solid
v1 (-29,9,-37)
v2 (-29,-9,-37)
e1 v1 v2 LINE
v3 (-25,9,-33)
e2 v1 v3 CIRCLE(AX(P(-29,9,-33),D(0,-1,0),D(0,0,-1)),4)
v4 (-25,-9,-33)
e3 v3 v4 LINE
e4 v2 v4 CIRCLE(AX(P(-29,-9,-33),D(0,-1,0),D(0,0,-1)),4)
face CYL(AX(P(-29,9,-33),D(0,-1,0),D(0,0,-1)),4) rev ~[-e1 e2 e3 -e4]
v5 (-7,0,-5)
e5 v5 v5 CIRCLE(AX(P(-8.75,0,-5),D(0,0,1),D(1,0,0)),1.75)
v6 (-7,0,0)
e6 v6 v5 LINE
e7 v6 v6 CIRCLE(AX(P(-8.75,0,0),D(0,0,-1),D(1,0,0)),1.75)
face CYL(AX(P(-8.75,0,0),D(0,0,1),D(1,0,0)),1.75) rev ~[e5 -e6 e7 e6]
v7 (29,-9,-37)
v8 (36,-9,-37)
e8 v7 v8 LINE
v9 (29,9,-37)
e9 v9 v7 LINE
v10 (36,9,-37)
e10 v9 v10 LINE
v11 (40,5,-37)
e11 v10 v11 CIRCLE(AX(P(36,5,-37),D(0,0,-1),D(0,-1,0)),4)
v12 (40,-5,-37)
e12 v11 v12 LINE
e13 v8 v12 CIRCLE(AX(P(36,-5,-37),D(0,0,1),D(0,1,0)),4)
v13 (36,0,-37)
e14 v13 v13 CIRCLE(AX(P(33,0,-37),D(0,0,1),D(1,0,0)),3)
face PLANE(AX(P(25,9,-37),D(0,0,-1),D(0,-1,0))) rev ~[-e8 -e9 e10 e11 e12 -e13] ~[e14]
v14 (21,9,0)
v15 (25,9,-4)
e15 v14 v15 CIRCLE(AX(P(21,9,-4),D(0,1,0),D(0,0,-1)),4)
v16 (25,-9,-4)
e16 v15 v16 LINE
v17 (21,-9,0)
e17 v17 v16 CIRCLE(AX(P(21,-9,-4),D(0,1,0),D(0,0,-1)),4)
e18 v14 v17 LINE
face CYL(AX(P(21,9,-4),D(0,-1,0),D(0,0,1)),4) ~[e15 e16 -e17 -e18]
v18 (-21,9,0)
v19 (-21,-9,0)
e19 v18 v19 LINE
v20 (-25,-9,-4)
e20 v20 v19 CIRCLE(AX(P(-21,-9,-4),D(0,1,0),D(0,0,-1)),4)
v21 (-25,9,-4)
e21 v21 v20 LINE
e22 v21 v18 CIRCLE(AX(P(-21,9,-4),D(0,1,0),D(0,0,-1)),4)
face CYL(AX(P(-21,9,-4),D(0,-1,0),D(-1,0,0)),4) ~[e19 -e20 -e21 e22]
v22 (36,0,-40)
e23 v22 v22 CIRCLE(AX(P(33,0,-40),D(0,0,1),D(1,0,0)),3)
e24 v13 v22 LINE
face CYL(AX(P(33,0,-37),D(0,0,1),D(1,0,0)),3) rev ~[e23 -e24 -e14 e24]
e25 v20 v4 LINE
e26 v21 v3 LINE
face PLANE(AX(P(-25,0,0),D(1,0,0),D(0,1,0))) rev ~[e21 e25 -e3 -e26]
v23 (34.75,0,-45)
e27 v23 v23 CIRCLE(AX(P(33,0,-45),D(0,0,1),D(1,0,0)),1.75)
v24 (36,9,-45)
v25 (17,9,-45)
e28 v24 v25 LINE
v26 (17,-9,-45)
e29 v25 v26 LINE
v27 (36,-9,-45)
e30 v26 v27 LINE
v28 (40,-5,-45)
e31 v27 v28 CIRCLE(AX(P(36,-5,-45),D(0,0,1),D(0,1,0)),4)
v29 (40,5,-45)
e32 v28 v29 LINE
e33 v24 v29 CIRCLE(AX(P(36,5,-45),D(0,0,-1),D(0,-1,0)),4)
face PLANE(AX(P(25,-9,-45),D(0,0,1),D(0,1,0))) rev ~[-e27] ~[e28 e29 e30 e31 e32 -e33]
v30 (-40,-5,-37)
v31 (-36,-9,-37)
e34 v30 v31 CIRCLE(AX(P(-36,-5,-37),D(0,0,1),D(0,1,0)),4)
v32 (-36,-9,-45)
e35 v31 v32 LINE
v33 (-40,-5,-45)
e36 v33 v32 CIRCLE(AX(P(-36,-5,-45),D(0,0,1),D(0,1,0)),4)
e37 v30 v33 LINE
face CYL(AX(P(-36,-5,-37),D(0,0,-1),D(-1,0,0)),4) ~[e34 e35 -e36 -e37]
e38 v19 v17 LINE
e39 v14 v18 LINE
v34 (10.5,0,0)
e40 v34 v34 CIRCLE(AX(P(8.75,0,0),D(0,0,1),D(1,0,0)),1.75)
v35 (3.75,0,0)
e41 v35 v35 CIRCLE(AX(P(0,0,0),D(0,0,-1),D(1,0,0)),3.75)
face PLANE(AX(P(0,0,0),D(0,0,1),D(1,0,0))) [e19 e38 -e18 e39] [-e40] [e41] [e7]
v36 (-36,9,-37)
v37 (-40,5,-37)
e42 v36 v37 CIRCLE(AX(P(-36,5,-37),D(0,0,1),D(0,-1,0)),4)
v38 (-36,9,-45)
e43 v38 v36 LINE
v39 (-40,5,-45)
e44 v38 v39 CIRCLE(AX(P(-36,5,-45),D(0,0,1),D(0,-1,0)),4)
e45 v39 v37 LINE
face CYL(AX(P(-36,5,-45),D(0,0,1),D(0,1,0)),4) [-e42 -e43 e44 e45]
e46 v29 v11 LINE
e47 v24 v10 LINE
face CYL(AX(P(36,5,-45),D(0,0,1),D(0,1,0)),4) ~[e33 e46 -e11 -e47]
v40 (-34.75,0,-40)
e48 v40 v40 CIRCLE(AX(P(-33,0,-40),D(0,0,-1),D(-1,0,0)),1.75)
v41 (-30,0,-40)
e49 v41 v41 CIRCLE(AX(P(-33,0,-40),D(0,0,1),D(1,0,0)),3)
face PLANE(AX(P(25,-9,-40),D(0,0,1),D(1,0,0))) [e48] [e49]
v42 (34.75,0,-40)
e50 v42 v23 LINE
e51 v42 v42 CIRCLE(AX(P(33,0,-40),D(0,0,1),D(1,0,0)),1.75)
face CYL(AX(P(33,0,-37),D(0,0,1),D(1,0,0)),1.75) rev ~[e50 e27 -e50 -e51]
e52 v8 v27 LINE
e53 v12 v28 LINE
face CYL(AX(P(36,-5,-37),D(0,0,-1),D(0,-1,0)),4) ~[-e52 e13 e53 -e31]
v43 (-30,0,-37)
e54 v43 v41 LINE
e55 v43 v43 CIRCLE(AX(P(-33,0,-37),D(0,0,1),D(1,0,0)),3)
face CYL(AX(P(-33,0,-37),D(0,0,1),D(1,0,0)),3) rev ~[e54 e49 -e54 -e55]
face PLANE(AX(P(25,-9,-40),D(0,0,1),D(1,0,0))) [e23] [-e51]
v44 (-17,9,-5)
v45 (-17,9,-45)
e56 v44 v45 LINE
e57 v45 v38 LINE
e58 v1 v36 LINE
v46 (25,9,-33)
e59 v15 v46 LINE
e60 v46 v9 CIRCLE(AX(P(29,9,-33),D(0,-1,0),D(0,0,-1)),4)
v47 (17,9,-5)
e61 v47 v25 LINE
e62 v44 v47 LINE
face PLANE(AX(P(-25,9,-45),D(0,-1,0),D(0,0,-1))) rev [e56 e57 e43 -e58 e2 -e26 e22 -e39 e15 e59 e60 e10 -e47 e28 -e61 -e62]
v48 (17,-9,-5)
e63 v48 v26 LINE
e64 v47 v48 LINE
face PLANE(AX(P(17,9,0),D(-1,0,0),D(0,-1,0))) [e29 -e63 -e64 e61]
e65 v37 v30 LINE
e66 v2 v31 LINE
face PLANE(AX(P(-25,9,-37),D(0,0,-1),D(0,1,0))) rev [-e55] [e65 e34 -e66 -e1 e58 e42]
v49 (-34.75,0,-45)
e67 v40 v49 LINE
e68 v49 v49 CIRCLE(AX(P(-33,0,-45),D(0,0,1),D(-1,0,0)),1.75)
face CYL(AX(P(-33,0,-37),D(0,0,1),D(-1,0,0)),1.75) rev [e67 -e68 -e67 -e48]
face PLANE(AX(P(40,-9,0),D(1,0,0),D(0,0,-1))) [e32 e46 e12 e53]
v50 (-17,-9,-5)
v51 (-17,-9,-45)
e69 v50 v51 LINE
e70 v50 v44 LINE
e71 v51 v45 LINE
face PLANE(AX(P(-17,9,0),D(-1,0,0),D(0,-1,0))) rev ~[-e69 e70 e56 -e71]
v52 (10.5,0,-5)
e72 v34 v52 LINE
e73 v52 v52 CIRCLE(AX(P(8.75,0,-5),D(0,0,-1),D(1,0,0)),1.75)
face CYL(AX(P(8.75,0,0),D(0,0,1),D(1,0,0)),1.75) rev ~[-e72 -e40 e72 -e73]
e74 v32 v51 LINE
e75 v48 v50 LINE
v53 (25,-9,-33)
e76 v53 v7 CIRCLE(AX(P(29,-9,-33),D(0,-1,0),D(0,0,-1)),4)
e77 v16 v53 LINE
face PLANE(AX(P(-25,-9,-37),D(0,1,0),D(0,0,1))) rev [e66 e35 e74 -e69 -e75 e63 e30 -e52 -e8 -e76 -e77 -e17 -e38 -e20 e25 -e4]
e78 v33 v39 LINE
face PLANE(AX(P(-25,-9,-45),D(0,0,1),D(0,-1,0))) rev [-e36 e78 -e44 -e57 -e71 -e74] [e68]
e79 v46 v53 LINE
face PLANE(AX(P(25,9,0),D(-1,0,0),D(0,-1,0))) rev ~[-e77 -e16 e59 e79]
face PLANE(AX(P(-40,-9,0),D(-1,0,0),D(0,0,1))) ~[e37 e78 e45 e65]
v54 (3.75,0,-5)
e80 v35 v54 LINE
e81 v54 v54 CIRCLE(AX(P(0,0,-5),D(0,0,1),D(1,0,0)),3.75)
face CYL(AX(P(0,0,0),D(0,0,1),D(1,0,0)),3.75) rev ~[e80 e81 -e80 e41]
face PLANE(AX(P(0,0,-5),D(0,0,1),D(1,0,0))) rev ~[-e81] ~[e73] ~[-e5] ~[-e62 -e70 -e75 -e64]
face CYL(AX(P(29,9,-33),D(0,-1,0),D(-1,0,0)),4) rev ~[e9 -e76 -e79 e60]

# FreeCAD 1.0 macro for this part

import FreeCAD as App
import Part
import Sketcher

V = App.Vector


def edges_at(feature, points):
    """Names of the edges that pass closest to the given points."""
    edges = feature.Shape.Edges
    near = lambda p: min(range(len(edges)), key=lambda i: edges[i].distToShape(Part.Vertex(*p))[0])
    return sorted({f"Edge{near(p) + 1}" for p in points})

doc = App.newDocument("Part")
body = doc.addObject("PartDesign::Body", "Body")

sketch1 = doc.addObject("Sketcher::SketchObject", "Sketch")
body.addObject(sketch1)
sketch1.AttachmentSupport = (doc.XY_Plane, [""])
sketch1.MapMode = "FlatFace"
sketch1.addGeometry([
    Part.LineSegment(V(17, -9, 0), V(17, 9, 0)),
    Part.LineSegment(V(17, 9, 0), V(-17, 9, 0)),
    Part.LineSegment(V(-17, 9, 0), V(-17, -9, 0)),
    Part.LineSegment(V(-17, -9, 0), V(17, -9, 0)),
    Part.Circle(V(8.75, 0, 0), V(0, 0, 1), 1.75),
    Part.Circle(V(0, 0, 0), V(0, 0, 1), 3.75),
    Part.Circle(V(-8.75, 0, 0), V(0, 0, 1), 1.75),
], False)
sketch1.addConstraint([
    Sketcher.Constraint("Coincident", 0, 2, 1, 1),
    Sketcher.Constraint("Coincident", 1, 2, 2, 1),
    Sketcher.Constraint("Coincident", 2, 2, 3, 1),
    Sketcher.Constraint("Coincident", 3, 2, 0, 1),
    Sketcher.Constraint("Vertical", 0),
    Sketcher.Constraint("Horizontal", 1),
    Sketcher.Constraint("Vertical", 2),
    Sketcher.Constraint("Horizontal", 3),
    Sketcher.Constraint("Coincident", 5, 3, -1, 1),
    Sketcher.Constraint("Equal", 4, 6),
    Sketcher.Constraint("Symmetric", 4, 3, 6, 3, -1, 1),
    Sketcher.Constraint("Symmetric", 0, 2, 2, 2, -1, 1),
    Sketcher.Constraint("PointOnObject", 4, 3, -1),
    Sketcher.Constraint("Diameter", 4, 3.5),
    Sketcher.Constraint("Diameter", 5, 7.5),
    Sketcher.Constraint("DistanceY", 0, 1, 0, 2, 18.0),
    Sketcher.Constraint("DistanceX", 1, 2, 1, 1, 34.0),
    Sketcher.Constraint("DistanceX", -1, 1, 4, 3, 8.75),
])
pad1 = doc.addObject("PartDesign::Pad", "Pad")
body.addObject(pad1)
pad1.Profile = sketch1
pad1.Length = 5
pad1.Reversed = True

sketch2 = doc.addObject("Sketcher::SketchObject", "Sketch001")
body.addObject(sketch2)
sketch2.AttachmentSupport = (doc.XY_Plane, [""])
sketch2.MapMode = "FlatFace"
sketch2.addGeometry([
    Part.LineSegment(V(-17, 9, 0), V(-25, 9, 0)),
    Part.LineSegment(V(-25, 9, 0), V(-25, -9, 0)),
    Part.LineSegment(V(-25, -9, 0), V(-17, -9, 0)),
    Part.LineSegment(V(-17, -9, 0), V(-17, 9, 0)),
    Part.LineSegment(V(25, 9, 0), V(17, 9, 0)),
    Part.LineSegment(V(17, 9, 0), V(17, -9, 0)),
    Part.LineSegment(V(17, -9, 0), V(25, -9, 0)),
    Part.LineSegment(V(25, -9, 0), V(25, 9, 0)),
], False)
sketch2.addConstraint([
    Sketcher.Constraint("Coincident", 0, 2, 1, 1),
    Sketcher.Constraint("Coincident", 1, 2, 2, 1),
    Sketcher.Constraint("Coincident", 2, 2, 3, 1),
    Sketcher.Constraint("Coincident", 3, 2, 0, 1),
    Sketcher.Constraint("Coincident", 4, 2, 5, 1),
    Sketcher.Constraint("Coincident", 5, 2, 6, 1),
    Sketcher.Constraint("Coincident", 6, 2, 7, 1),
    Sketcher.Constraint("Coincident", 7, 2, 4, 1),
    Sketcher.Constraint("Horizontal", 0),
    Sketcher.Constraint("Vertical", 1),
    Sketcher.Constraint("Horizontal", 2),
    Sketcher.Constraint("Vertical", 3),
    Sketcher.Constraint("Horizontal", 4),
    Sketcher.Constraint("Vertical", 5),
    Sketcher.Constraint("Horizontal", 6),
    Sketcher.Constraint("Vertical", 7),
    Sketcher.Constraint("Symmetric", 2, 2, 4, 2, -1, 1),
    Sketcher.Constraint("Symmetric", 0, 2, 6, 2, -1, 1),
    Sketcher.Constraint("Horizontal", 3, 2, 4, 2),
    Sketcher.Constraint("DistanceX", 0, 2, 0, 1, 8.0),
    Sketcher.Constraint("DistanceY", 1, 2, 1, 1, 18.0),
    Sketcher.Constraint("DistanceX", 1, 2, 6, 2, 50.0),
])
pad2 = doc.addObject("PartDesign::Pad", "Pad001")
body.addObject(pad2)
pad2.Profile = sketch2
pad2.Length = 45
pad2.Reversed = True

sketch3 = doc.addObject("Sketcher::SketchObject", "Sketch002")
body.addObject(sketch3)
sketch3.AttachmentSupport = (doc.YZ_Plane, [""])
sketch3.MapMode = "FlatFace"
sketch3.AttachmentOffset = App.Placement(V(0, 0, 25), App.Rotation())
sketch3.addGeometry([
    Part.LineSegment(V(9, -37, 0), V(-9, -37, 0)),
    Part.LineSegment(V(-9, -37, 0), V(-9, -45, 0)),
    Part.LineSegment(V(-9, -45, 0), V(9, -45, 0)),
    Part.LineSegment(V(9, -45, 0), V(9, -37, 0)),
], False)
sketch3.addConstraint([
    Sketcher.Constraint("Coincident", 0, 2, 1, 1),
    Sketcher.Constraint("Coincident", 1, 2, 2, 1),
    Sketcher.Constraint("Coincident", 2, 2, 3, 1),
    Sketcher.Constraint("Coincident", 3, 2, 0, 1),
    Sketcher.Constraint("Horizontal", 0),
    Sketcher.Constraint("Vertical", 1),
    Sketcher.Constraint("Horizontal", 2),
    Sketcher.Constraint("Vertical", 3),
    Sketcher.Constraint("DistanceY", 1, 2, 1, 1, 8.0),
    Sketcher.Constraint("DistanceX", 0, 2, 0, 1, 18.0),
    Sketcher.Constraint("DistanceX", 0, 2, -1, 1, 9.0),
    Sketcher.Constraint("DistanceY", 0, 2, -1, 1, 37.0),
])
pad3 = doc.addObject("PartDesign::Pad", "Pad002")
body.addObject(pad3)
pad3.Profile = sketch3
pad3.Length = 15

sketch4 = doc.addObject("Sketcher::SketchObject", "Sketch003")
body.addObject(sketch4)
sketch4.AttachmentSupport = (doc.XY_Plane, [""])
sketch4.MapMode = "FlatFace"
sketch4.AttachmentOffset = App.Placement(V(0, 0, -37), App.Rotation())
sketch4.addGeometry(Part.Circle(V(33, 0, 0), V(0, 0, 1), 1.75), False)
sketch4.addConstraint([
    Sketcher.Constraint("PointOnObject", 0, 3, -1),
    Sketcher.Constraint("Diameter", 0, 3.5),
    Sketcher.Constraint("DistanceX", -1, 1, 0, 3, 33.0),
])
pocket1 = doc.addObject("PartDesign::Pocket", "Pocket")
body.addObject(pocket1)
pocket1.Profile = sketch4
pocket1.Length = 15
doc.recompute()

mirrored = doc.addObject("PartDesign::Mirrored", "Mirrored")
body.addObject(mirrored)
mirrored.Originals = [pad3, pocket1]
mirrored.MirrorPlane = (doc.YZ_Plane, [""])
body.Tip = mirrored

sketch5 = doc.addObject("Sketcher::SketchObject", "Sketch004")
body.addObject(sketch5)
sketch5.AttachmentSupport = (doc.XY_Plane, [""])
sketch5.MapMode = "FlatFace"
sketch5.AttachmentOffset = App.Placement(V(0, 0, -37), App.Rotation())
sketch5.addGeometry([
    Part.Circle(V(33, 0, 0), V(0, 0, 1), 3),
    Part.Circle(V(33, 0, 0), V(0, 0, 1), 1.75),
    Part.Circle(V(-33, 0, 0), V(0, 0, 1), 3),
    Part.Circle(V(-33, 0, 0), V(0, 0, 1), 1.75),
], False)
sketch5.addConstraint([
    Sketcher.Constraint("Coincident", 1, 3, 0, 3),
    Sketcher.Constraint("Coincident", 3, 3, 2, 3),
    Sketcher.Constraint("Equal", 0, 2),
    Sketcher.Constraint("Equal", 1, 3),
    Sketcher.Constraint("Symmetric", 0, 3, 2, 3, -1, 1),
    Sketcher.Constraint("PointOnObject", 0, 3, -1),
    Sketcher.Constraint("Diameter", 0, 6.0),
    Sketcher.Constraint("Diameter", 1, 3.5),
    Sketcher.Constraint("DistanceX", -1, 1, 0, 3, 33.0),
])
pocket2 = doc.addObject("PartDesign::Pocket", "Pocket001")
body.addObject(pocket2)
pocket2.Profile = sketch5
pocket2.Length = 3
doc.recompute()

fillet = doc.addObject("PartDesign::Fillet", "Fillet")
body.addObject(fillet)
fillet.Base = (pocket2, edges_at(pocket2, [
    (25, 0, -37),
    (25, 0, 0),
    (-25, 0, 0),
    (-25, 0, -37),
    (-40, -9, -41),
    (-40, 9, -41),
    (40, -9, -41),
    (40, 9, -41),
]))
fillet.Radius = 4

doc.recompute()
